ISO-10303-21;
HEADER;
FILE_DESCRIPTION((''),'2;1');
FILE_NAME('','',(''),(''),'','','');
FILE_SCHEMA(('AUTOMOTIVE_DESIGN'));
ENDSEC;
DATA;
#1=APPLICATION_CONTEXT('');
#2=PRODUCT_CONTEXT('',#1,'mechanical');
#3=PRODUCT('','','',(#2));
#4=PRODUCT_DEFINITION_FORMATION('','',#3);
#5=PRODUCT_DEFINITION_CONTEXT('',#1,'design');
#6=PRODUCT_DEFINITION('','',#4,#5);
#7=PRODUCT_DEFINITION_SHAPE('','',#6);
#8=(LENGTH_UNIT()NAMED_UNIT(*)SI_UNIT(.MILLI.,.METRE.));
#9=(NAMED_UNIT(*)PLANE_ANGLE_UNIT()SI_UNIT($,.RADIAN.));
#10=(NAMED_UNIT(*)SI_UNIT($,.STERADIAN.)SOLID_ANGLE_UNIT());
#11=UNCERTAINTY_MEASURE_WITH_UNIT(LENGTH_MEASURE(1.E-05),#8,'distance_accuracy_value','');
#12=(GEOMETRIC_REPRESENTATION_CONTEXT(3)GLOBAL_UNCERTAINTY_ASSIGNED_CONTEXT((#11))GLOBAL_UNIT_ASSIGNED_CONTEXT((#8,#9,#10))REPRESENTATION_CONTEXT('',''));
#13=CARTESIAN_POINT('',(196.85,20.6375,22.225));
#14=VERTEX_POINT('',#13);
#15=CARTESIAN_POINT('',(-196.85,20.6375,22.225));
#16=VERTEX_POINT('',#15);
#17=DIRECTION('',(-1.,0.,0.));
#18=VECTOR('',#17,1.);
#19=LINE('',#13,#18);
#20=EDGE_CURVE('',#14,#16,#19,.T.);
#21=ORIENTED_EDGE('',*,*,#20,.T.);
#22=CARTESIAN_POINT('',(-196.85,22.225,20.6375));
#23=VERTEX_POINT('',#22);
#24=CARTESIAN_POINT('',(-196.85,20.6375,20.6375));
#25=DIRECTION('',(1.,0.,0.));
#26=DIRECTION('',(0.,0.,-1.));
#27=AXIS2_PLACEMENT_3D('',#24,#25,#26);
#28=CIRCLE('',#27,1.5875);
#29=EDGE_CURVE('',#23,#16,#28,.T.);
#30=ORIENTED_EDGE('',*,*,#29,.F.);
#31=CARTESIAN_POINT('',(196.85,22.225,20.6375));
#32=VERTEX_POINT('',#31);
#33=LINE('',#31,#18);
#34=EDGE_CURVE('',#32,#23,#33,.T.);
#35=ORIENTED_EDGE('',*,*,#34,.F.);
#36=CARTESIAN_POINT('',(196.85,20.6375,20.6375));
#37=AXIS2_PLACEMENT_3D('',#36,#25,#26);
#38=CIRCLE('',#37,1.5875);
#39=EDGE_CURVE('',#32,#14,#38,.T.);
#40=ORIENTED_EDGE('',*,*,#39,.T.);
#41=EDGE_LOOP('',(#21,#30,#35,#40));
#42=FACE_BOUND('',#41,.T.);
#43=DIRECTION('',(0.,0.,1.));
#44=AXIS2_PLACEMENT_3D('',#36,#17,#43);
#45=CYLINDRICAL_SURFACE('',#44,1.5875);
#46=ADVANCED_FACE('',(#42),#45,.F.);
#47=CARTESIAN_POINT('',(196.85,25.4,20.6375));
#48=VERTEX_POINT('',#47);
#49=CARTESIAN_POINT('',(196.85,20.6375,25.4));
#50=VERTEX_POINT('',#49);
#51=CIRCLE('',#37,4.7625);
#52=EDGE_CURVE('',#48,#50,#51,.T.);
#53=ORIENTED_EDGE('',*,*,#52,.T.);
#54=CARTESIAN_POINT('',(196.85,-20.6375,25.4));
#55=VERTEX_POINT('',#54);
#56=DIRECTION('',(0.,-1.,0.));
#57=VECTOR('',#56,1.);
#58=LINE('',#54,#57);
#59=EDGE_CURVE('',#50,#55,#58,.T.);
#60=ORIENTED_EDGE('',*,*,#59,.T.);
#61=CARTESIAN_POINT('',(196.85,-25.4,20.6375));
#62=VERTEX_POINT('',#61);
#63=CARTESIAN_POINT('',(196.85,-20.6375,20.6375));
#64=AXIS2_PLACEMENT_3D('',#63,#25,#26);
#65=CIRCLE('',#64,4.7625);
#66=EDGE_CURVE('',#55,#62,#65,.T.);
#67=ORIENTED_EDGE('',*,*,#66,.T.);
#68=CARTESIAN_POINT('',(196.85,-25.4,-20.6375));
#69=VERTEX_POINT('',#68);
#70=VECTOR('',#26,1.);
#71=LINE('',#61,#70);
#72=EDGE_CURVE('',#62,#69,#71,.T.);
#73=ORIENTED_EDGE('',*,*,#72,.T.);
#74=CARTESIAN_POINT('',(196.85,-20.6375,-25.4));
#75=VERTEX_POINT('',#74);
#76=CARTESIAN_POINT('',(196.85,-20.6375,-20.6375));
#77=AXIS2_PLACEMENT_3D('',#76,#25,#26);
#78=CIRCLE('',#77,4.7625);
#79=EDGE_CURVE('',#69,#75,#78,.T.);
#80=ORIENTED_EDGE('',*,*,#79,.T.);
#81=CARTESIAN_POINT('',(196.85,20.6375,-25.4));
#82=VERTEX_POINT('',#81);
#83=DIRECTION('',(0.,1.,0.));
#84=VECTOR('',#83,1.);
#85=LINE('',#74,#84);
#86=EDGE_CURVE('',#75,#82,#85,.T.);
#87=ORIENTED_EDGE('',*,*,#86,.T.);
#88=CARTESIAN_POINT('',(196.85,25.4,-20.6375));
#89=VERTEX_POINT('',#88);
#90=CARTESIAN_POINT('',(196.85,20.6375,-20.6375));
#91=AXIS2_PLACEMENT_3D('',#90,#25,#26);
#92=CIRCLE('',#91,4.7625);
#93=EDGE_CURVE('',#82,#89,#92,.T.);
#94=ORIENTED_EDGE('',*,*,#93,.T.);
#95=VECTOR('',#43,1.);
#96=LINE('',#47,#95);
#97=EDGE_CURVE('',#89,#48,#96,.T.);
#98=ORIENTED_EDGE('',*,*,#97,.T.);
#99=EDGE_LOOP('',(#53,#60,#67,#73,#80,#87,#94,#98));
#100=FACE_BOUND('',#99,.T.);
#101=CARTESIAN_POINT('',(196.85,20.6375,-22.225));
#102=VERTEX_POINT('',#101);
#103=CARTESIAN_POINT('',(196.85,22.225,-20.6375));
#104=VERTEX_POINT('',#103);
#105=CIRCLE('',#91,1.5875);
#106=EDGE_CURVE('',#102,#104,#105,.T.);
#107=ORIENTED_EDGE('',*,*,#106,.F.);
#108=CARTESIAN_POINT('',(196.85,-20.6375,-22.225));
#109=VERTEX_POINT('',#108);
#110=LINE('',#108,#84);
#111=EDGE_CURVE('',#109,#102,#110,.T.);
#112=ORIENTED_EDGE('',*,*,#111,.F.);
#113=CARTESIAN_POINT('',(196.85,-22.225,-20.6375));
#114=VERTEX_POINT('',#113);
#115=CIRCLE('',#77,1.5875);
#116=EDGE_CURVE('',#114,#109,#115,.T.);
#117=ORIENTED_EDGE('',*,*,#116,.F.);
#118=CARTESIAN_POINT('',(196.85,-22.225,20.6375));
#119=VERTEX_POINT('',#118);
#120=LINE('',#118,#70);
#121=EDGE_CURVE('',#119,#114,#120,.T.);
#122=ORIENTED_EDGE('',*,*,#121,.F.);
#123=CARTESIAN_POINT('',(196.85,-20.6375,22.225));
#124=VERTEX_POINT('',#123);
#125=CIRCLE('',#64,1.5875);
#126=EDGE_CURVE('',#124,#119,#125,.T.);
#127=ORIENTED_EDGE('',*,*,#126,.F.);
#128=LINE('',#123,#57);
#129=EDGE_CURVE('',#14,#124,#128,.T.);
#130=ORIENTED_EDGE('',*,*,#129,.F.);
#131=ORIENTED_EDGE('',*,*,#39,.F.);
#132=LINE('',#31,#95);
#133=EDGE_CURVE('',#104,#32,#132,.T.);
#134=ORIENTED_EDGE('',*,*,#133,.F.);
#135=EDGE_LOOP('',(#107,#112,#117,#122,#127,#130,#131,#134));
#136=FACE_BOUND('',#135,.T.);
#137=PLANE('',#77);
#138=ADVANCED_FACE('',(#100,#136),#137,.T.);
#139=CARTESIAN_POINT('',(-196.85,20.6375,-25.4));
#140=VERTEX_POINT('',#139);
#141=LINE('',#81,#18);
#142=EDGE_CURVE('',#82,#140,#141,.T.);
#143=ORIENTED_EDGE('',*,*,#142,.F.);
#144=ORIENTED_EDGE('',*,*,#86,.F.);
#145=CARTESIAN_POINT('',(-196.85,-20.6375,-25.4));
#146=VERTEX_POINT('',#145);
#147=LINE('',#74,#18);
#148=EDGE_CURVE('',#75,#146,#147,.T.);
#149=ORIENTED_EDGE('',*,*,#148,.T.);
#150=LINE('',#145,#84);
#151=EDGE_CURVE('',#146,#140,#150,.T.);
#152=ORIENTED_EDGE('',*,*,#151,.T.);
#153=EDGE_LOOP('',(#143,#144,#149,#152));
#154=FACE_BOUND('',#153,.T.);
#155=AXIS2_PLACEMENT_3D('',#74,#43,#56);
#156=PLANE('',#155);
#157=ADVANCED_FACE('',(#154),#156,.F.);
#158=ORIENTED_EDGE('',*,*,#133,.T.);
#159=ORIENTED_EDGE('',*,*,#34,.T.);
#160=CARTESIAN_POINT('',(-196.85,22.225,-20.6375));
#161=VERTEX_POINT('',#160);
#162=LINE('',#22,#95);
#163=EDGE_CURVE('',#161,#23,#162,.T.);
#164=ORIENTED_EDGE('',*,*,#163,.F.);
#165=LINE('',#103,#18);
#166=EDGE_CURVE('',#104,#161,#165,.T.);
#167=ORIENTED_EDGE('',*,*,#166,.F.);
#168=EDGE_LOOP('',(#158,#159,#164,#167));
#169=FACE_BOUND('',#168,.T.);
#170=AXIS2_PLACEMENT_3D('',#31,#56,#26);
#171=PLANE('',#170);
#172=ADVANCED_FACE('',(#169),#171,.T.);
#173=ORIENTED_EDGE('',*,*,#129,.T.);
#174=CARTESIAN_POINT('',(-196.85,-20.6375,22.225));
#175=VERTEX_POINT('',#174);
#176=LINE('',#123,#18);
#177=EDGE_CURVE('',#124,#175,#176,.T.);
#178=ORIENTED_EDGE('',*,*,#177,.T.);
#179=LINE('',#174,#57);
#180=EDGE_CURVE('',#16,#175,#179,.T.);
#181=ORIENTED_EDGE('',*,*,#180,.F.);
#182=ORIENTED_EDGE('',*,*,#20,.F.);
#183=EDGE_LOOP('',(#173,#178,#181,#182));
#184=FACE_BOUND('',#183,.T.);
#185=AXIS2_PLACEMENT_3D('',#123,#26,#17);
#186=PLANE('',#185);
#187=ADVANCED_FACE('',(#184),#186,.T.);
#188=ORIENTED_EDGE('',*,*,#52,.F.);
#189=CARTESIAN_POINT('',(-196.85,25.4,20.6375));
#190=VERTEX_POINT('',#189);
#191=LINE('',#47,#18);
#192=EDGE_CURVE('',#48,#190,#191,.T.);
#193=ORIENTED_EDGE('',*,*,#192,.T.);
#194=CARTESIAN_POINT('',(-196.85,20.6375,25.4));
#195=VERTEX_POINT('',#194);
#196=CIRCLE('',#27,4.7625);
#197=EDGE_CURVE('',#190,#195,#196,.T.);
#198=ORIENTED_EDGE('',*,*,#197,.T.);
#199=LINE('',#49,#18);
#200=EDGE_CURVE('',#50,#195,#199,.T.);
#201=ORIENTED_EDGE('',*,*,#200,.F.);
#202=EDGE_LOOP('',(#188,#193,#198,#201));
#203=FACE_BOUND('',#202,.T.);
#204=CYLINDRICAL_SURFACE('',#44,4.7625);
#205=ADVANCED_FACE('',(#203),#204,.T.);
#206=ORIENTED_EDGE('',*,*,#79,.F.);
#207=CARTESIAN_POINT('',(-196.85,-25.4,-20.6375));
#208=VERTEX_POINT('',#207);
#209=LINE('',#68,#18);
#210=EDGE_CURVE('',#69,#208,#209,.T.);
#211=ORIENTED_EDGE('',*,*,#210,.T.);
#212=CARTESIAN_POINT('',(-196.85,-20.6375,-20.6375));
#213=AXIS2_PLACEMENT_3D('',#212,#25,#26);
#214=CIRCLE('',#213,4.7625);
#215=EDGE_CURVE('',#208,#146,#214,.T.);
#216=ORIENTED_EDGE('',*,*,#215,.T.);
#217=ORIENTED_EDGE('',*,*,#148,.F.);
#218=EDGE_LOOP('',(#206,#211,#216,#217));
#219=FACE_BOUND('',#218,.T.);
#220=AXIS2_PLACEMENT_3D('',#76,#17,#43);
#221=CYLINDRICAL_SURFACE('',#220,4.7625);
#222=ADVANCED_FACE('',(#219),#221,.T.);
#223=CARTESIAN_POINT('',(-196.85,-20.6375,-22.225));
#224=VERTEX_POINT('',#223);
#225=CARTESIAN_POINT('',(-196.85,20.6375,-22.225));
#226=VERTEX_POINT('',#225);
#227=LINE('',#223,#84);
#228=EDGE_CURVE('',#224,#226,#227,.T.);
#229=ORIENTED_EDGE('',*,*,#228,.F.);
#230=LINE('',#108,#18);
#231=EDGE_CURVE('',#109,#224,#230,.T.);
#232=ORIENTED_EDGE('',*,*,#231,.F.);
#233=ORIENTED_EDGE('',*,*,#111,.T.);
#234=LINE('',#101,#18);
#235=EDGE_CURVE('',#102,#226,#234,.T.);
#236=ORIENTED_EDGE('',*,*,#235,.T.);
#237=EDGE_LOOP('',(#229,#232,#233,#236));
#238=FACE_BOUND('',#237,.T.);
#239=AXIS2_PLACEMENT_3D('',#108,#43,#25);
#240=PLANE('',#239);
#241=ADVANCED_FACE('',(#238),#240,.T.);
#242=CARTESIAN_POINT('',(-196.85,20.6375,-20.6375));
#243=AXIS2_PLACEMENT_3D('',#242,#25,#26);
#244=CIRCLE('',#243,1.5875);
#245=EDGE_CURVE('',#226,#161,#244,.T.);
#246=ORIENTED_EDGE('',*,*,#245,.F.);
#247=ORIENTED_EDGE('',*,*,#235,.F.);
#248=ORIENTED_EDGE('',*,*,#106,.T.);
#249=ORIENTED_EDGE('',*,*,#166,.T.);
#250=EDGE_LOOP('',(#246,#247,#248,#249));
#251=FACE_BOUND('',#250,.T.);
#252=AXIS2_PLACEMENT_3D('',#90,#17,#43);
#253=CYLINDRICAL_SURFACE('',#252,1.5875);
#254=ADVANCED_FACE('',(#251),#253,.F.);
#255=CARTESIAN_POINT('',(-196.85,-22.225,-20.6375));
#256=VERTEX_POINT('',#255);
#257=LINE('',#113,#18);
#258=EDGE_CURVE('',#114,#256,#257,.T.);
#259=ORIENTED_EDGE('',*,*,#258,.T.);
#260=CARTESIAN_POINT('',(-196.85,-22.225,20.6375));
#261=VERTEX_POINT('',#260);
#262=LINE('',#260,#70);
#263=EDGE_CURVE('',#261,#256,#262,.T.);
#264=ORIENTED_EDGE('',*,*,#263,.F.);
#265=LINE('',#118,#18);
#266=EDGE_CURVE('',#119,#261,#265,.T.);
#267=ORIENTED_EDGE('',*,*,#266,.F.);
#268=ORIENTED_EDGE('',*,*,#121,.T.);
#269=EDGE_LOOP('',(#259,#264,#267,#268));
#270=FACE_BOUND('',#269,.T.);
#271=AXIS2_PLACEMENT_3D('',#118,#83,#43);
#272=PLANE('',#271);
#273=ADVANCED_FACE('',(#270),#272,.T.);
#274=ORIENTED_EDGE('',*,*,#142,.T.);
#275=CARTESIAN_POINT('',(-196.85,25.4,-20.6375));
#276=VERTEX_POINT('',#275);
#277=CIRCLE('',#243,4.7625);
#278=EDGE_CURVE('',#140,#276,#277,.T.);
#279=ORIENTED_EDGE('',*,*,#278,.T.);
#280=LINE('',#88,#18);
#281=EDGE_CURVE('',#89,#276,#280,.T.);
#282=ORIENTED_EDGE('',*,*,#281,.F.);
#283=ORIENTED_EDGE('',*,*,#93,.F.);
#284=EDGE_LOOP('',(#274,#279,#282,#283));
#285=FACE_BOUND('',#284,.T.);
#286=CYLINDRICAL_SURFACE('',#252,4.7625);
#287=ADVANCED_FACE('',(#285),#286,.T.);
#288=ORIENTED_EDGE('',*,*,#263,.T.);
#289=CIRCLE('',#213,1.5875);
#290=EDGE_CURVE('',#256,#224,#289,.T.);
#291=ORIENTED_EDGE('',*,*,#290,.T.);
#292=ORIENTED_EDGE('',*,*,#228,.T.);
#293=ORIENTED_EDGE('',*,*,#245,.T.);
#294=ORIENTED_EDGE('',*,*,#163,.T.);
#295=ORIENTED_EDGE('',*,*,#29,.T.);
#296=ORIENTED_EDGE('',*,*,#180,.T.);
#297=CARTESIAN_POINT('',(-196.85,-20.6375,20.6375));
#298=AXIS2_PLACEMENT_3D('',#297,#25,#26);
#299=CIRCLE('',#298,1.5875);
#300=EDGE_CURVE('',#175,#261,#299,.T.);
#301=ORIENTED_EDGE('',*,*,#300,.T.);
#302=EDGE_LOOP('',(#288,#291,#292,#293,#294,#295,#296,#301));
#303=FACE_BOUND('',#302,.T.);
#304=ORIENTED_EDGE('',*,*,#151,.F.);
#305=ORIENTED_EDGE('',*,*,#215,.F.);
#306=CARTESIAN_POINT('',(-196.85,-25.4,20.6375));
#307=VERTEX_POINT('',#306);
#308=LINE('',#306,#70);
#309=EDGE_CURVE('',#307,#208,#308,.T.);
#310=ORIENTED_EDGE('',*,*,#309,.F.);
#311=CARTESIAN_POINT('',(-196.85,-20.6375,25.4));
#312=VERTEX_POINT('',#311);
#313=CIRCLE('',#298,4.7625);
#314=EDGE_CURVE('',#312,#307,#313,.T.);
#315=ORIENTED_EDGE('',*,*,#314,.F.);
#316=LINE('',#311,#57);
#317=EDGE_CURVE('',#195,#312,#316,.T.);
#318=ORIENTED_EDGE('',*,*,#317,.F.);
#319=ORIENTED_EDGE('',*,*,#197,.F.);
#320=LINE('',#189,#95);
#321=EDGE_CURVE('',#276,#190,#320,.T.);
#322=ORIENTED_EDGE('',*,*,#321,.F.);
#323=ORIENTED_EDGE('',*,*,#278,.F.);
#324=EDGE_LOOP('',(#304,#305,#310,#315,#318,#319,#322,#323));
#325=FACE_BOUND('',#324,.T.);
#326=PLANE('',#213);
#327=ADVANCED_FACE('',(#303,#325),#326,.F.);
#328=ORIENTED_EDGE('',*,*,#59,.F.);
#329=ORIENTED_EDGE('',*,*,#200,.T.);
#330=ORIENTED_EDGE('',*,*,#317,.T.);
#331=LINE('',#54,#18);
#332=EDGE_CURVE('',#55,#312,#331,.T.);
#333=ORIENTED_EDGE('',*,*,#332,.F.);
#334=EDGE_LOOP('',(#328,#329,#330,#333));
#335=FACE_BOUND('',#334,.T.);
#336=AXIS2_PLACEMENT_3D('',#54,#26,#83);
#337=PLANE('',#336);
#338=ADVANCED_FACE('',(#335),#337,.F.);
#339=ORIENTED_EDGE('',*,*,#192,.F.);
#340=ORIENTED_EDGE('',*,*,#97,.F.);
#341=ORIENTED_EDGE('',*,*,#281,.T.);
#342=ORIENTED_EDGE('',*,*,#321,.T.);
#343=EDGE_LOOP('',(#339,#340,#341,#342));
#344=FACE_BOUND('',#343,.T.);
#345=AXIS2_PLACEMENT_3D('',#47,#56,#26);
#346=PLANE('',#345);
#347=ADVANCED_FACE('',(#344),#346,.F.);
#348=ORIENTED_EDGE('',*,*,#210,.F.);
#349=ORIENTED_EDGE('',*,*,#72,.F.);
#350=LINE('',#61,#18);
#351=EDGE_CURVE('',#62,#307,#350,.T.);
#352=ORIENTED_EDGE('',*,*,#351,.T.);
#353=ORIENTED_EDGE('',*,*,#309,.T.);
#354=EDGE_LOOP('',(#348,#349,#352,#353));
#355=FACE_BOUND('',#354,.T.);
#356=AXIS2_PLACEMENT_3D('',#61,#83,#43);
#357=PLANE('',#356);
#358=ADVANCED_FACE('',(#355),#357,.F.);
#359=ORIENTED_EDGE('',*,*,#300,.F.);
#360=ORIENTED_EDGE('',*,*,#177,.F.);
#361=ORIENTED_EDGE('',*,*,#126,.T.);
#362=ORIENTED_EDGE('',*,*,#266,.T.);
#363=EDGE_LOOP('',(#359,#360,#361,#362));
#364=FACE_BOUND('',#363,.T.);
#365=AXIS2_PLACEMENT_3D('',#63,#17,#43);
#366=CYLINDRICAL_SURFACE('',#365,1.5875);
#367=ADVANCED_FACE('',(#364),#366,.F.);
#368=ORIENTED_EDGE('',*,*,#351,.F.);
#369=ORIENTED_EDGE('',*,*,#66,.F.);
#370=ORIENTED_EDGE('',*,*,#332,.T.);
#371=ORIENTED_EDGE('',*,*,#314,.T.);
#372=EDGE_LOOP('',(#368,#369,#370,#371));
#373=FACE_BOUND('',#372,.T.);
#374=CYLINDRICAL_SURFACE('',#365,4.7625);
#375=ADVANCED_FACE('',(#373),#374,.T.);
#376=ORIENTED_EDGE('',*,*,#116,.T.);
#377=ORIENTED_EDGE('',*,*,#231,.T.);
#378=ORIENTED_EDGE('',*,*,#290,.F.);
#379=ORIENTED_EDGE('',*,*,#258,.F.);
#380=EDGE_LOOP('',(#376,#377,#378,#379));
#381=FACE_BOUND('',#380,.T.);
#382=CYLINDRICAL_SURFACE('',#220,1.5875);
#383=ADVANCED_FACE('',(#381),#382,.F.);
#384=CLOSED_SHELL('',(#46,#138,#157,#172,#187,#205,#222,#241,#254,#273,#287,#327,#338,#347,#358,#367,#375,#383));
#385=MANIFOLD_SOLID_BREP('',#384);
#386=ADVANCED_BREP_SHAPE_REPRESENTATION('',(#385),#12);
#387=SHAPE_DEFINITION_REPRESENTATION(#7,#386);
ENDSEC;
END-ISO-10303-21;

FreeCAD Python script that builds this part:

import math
import FreeCAD as App
import Part
import Sketcher
Q = App.Units.Quantity

doc = App.newDocument("Part")
body = doc.addObject("PartDesign::Body", "Body")

sketch1 = doc.addObject("Sketcher::SketchObject", "Sketch")
body.addObject(sketch1)
sketch1.AttachmentSupport = (doc.YZ_Plane, [""])
sketch1.MapMode = "FlatFace"
sketch1.addGeometry([
    Part.LineSegment(App.Vector(20.6375, 25.4, 0), App.Vector(-20.6375, 25.4, 0)),
    Part.ArcOfCircle(Part.Circle(App.Vector(-20.6375, 20.6375, 0), App.Vector(0, 0, 1), 4.7625), math.radians(90), math.radians(180)),
    Part.LineSegment(App.Vector(-25.4, 20.6375, 0), App.Vector(-25.4, -20.6375, 0)),
    Part.ArcOfCircle(Part.Circle(App.Vector(-20.6375, -20.6375, 0), App.Vector(0, 0, 1), 4.7625), math.radians(-180), math.radians(-90)),
    Part.LineSegment(App.Vector(-20.6375, -25.4, 0), App.Vector(20.6375, -25.4, 0)),
    Part.ArcOfCircle(Part.Circle(App.Vector(20.6375, -20.6375, 0), App.Vector(0, 0, 1), 4.7625), math.radians(-90), math.radians(0)),
    Part.LineSegment(App.Vector(25.4, -20.6375, 0), App.Vector(25.4, 20.6375, 0)),
    Part.ArcOfCircle(Part.Circle(App.Vector(20.6375, 20.6375, 0), App.Vector(0, 0, 1), 4.7625), math.radians(0), math.radians(90)),
    Part.LineSegment(App.Vector(-20.6375, 22.225, 0), App.Vector(20.6375, 22.225, 0)),
    Part.ArcOfCircle(Part.Circle(App.Vector(20.6375, 20.6375, 0), App.Vector(0, 0, 1), 1.5875), math.radians(0), math.radians(90)),
    Part.LineSegment(App.Vector(22.225, 20.6375, 0), App.Vector(22.225, -20.6375, 0)),
    Part.ArcOfCircle(Part.Circle(App.Vector(20.6375, -20.6375, 0), App.Vector(0, 0, 1), 1.5875), math.radians(-90), math.radians(0)),
    Part.LineSegment(App.Vector(20.6375, -22.225, 0), App.Vector(-20.6375, -22.225, 0)),
    Part.ArcOfCircle(Part.Circle(App.Vector(-20.6375, -20.6375, 0), App.Vector(0, 0, 1), 1.5875), math.radians(180), math.radians(270)),
    Part.LineSegment(App.Vector(-22.225, -20.6375, 0), App.Vector(-22.225, 20.6375, 0)),
    Part.ArcOfCircle(Part.Circle(App.Vector(-20.6375, 20.6375, 0), App.Vector(0, 0, 1), 1.5875), math.radians(90), math.radians(180)),
], False)
sketch1.addConstraint([
    Sketcher.Constraint("Tangent", 0, 2, 1, 1),
    Sketcher.Constraint("Tangent", 1, 2, 2, 1),
    Sketcher.Constraint("Tangent", 2, 2, 3, 1),
    Sketcher.Constraint("Tangent", 3, 2, 4, 1),
    Sketcher.Constraint("Tangent", 4, 2, 5, 1),
    Sketcher.Constraint("Tangent", 5, 2, 6, 1),
    Sketcher.Constraint("Tangent", 6, 2, 7, 1),
    Sketcher.Constraint("Tangent", 7, 2, 0, 1),
    Sketcher.Constraint("Tangent", 8, 2, 9, 2),
    Sketcher.Constraint("Tangent", 9, 1, 10, 1),
    Sketcher.Constraint("Tangent", 10, 2, 11, 2),
    Sketcher.Constraint("Tangent", 11, 1, 12, 1),
    Sketcher.Constraint("Tangent", 12, 2, 13, 2),
    Sketcher.Constraint("Tangent", 13, 1, 14, 1),
    Sketcher.Constraint("Tangent", 14, 2, 15, 2),
    Sketcher.Constraint("Tangent", 15, 1, 8, 1),
    Sketcher.Constraint("Horizontal", 0),
    Sketcher.Constraint("Vertical", 2),
    Sketcher.Constraint("Horizontal", 4),
    Sketcher.Constraint("Vertical", 6),
    Sketcher.Constraint("Horizontal", 8),
    Sketcher.Constraint("Vertical", 10),
    Sketcher.Constraint("Horizontal", 12),
    Sketcher.Constraint("Vertical", 14),
    Sketcher.Constraint("Coincident", 9, 3, 7, 3),
    Sketcher.Constraint("Coincident", 11, 3, 5, 3),
    Sketcher.Constraint("Coincident", 13, 3, 3, 3),
    Sketcher.Constraint("Equal", 1, 3),
    Sketcher.Constraint("Equal", 3, 5),
    Sketcher.Constraint("Equal", 5, 7),
    Sketcher.Constraint("Equal", 13, 15),
    Sketcher.Constraint("Symmetric", 1, 3, 5, 3, -1, 1),
    Sketcher.Constraint("Equal", 12, 2),
    Sketcher.Constraint("DistanceY", -1, 1, 0, 2, Q("1 in")),
    Sketcher.Constraint("Radius", 1, Q("0.1875 in")),
    Sketcher.Constraint("Radius", 9, Q("0.0625 in")),
])
pad1 = doc.addObject("PartDesign::Pad", "Pad")
body.addObject(pad1)
pad1.Profile = sketch1
pad1.Length = Q("15.5 in")
pad1.Midplane = True

doc.recompute()
